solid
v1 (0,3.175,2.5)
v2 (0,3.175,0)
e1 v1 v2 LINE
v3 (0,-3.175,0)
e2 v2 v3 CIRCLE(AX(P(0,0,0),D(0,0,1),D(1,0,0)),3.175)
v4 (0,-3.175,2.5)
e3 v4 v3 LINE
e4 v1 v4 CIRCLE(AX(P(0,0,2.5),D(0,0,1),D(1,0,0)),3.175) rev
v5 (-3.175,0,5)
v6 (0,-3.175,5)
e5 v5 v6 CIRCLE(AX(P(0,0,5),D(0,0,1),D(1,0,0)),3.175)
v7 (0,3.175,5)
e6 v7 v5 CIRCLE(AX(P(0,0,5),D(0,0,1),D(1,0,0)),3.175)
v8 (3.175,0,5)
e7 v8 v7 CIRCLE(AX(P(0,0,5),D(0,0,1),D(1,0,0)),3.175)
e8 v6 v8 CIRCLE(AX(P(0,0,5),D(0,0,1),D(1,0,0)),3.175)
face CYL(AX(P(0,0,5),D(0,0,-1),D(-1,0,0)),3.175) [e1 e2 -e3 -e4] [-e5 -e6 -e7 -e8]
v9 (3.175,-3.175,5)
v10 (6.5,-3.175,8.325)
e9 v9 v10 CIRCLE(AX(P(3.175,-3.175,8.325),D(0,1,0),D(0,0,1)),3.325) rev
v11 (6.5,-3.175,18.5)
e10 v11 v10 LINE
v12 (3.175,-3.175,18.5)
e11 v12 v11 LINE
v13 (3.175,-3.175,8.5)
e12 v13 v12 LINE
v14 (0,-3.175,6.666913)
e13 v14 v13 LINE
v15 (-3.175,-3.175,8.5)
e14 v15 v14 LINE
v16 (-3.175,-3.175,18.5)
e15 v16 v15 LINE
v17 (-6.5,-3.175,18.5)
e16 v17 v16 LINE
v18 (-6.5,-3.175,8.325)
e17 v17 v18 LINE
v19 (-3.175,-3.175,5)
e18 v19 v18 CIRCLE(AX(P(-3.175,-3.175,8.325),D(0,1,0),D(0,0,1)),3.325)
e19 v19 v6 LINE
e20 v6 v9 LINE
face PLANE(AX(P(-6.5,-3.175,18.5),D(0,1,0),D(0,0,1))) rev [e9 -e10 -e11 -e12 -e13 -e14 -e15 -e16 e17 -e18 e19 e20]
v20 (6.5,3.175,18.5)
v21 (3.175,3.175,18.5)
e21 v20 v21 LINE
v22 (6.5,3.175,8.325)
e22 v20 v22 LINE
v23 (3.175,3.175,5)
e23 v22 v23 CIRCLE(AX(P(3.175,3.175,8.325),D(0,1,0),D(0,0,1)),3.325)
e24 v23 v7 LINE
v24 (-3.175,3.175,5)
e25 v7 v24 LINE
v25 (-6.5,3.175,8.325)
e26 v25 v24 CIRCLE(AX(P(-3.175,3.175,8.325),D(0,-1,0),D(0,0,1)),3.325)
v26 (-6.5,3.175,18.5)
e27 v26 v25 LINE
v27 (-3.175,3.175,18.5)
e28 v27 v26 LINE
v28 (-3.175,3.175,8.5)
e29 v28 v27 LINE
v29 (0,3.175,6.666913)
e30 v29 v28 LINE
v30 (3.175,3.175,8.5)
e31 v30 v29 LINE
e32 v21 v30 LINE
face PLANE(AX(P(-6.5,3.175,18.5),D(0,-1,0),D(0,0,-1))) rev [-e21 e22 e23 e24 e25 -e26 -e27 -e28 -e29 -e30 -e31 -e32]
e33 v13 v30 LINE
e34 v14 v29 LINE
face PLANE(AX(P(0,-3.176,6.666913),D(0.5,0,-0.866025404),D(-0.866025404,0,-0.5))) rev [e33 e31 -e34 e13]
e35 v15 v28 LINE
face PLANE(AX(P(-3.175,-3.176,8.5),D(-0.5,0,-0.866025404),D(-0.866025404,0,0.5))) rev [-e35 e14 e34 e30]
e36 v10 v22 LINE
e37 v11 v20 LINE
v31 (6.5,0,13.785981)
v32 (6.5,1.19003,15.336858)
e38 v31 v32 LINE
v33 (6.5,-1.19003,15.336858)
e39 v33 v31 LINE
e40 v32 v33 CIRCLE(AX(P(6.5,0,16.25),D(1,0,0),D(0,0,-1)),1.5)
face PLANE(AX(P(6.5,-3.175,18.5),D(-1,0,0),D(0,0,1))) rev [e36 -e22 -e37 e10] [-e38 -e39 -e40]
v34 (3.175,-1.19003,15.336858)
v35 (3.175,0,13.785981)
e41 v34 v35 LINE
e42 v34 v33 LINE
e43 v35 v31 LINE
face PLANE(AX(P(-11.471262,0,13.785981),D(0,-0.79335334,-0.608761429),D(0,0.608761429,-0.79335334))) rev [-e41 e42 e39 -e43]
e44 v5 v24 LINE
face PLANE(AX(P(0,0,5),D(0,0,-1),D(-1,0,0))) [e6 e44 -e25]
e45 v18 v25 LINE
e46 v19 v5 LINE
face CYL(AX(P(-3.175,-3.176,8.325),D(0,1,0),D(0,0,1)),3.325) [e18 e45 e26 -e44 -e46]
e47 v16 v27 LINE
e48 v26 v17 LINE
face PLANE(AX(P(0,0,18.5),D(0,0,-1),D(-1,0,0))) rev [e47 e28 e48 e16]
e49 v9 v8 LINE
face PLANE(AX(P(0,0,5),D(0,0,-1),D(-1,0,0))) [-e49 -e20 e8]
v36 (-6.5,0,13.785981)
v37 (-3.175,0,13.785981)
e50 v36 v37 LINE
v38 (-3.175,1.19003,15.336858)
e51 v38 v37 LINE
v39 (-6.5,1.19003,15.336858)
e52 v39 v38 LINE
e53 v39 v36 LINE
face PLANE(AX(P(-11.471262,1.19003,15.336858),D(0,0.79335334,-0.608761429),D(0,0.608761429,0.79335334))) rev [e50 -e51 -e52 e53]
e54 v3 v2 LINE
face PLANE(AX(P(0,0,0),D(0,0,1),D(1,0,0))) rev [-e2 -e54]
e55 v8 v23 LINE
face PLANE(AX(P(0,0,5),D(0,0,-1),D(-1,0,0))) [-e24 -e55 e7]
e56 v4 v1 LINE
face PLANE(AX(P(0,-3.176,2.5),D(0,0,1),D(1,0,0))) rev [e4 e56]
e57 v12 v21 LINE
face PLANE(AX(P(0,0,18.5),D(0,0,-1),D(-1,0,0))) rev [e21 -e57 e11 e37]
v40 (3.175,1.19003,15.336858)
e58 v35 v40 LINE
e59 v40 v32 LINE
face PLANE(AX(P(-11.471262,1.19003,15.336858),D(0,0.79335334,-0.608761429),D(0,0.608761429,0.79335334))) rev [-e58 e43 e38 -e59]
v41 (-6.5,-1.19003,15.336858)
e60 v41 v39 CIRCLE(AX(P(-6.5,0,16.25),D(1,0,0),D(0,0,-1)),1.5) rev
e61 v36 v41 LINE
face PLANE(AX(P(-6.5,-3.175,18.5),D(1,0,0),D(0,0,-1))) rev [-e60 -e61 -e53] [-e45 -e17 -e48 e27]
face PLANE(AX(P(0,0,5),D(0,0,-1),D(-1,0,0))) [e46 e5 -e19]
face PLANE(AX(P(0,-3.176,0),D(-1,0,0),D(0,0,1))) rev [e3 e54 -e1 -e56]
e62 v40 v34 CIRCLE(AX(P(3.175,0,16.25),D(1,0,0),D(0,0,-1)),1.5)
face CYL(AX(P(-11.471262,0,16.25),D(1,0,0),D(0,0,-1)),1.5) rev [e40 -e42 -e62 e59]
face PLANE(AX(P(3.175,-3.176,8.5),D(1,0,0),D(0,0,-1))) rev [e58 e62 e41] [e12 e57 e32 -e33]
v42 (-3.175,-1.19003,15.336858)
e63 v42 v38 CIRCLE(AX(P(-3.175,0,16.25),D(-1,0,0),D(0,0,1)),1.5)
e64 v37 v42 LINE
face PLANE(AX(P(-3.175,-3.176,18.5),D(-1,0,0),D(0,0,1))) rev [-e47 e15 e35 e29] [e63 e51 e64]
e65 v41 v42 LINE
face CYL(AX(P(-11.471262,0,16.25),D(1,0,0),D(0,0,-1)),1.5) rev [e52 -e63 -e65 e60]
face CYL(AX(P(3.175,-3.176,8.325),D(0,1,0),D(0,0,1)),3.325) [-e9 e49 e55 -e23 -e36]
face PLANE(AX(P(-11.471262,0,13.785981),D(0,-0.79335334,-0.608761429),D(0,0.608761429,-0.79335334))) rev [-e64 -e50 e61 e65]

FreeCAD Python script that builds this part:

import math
import FreeCAD as App
import Part
import Sketcher
Q = App.Units.Quantity


def add_polygon(sketch, points):
    """Adds a closed chain of lines whose ends are joined by coincident constraints."""
    first, n = sketch.GeometryCount, len(points)
    for a, b in zip(points, points[1:] + points[:1]):
        sketch.addGeometry(Part.LineSegment(App.Vector(*a, 0), App.Vector(*b, 0)), False)
    for i in range(n):
        sketch.addConstraint(Sketcher.Constraint("Coincident", first + i, 2, first + (i + 1) % n, 1))

doc = App.newDocument("Part")
body = doc.addObject("PartDesign::Body", "Body")

sketch1 = body.newObject("Sketcher::SketchObject", "Sketch")
sketch1.AttachmentSupport = (doc.getObject("XY_Plane"), [""])
sketch1.MapMode = "FlatFace"
sketch1.addGeometry(Part.Circle(App.Vector(0, 0, 0), App.Vector(0, 0, 1), 3.175), False)
sketch1.addConstraint([
    Sketcher.Constraint("Coincident", 0, 3, -1, 1),
    Sketcher.Constraint("Diameter", 0, 6.35),
])
pad1 = body.newObject("PartDesign::Pad", "Pad")
pad1.Profile = sketch1
pad1.Length = 5

sketch2 = body.newObject("Sketcher::SketchObject", "Sketch001")
sketch2.AttachmentSupport = (doc.getObject("XY_Plane"), [""])
sketch2.MapMode = "FlatFace"
sketch2.AttachmentOffset = App.Placement(App.Vector(0, 0, 5), App.Rotation())
add_polygon(sketch2, [(-6.5, 3.175), (-6.5, -3.175), (6.5, -3.175), (6.5, 3.175)])
sketch2.addConstraint([
    Sketcher.Constraint("Vertical", 0),
    Sketcher.Constraint("Horizontal", 1),
    Sketcher.Constraint("Vertical", 2),
    Sketcher.Constraint("Horizontal", 3),
    Sketcher.Constraint("Symmetric", 0, 2, 2, 2, -1, 1),
    Sketcher.Constraint("DistanceX", 1, 1, 1, 2, 13.0),
    Sketcher.Constraint("DistanceY", 0, 2, 0, 1, 6.35),
])
pad2 = body.newObject("PartDesign::Pad", "Pad001")
pad2.Profile = sketch2
pad2.Length = 13.5

sketch3 = body.newObject("Sketcher::SketchObject", "Sketch002")
sketch3.AttachmentSupport = (doc.getObject("XZ_Plane"), [""])
sketch3.MapMode = "FlatFace"
add_polygon(sketch3, [(0, 0), (0, 2.5), (3.175, 2.5), (3.175, 0)])
sketch3.addConstraint([
    Sketcher.Constraint("Vertical", 0),
    Sketcher.Constraint("Horizontal", 1),
    Sketcher.Constraint("Vertical", 2),
    Sketcher.Constraint("Horizontal", 3),
    Sketcher.Constraint("Coincident", 3, 2, -1, 1),
    Sketcher.Constraint("DistanceY", 0, 1, 0, 2, 2.5),
    Sketcher.Constraint("DistanceX", 1, 1, 1, 2, 3.175),
])
pocket1 = body.newObject("PartDesign::Pocket", "Pocket")
pocket1.Profile = sketch3
pocket1.Length = 3.175
pocket1.Reversed = True

sketch4 = body.newObject("Sketcher::SketchObject", "Sketch003")
sketch4.AttachmentSupport = (doc.getObject("XZ_Plane"), [""])
sketch4.MapMode = "FlatFace"
add_polygon(sketch4, [(0, 0), (0, 2.5), (3.175, 2.5), (3.175, 0)])
sketch4.addConstraint([
    Sketcher.Constraint("Vertical", 0),
    Sketcher.Constraint("Horizontal", 1),
    Sketcher.Constraint("Vertical", 2),
    Sketcher.Constraint("Horizontal", 3),
    Sketcher.Constraint("Coincident", 3, 2, -1, 1),
    Sketcher.Constraint("DistanceY", 0, 1, 0, 2, 2.5),
    Sketcher.Constraint("DistanceX", 1, 1, 1, 2, 3.175),
])
pocket2 = body.newObject("PartDesign::Pocket", "Pocket001")
pocket2.Profile = sketch4
pocket2.Length = 3.175

sketch5 = body.newObject("Sketcher::SketchObject", "Sketch004")
sketch5.AttachmentSupport = (doc.getObject("XZ_Plane"), [""])
sketch5.MapMode = "FlatFace"
sketch5.AttachmentOffset = App.Placement(App.Vector(0, 0, -3.175), App.Rotation())
add_polygon(sketch5, [(-3.175, 18.5), (3.175, 18.5), (3.175, 8.5), (0, 6.666913), (-3.175, 8.5)])
sketch5.addConstraint([
    Sketcher.Constraint("Horizontal", 0),
    Sketcher.Constraint("Vertical", 1),
    Sketcher.Constraint("Vertical", 4),
    Sketcher.Constraint("Symmetric", 1, 2, 3, 2, -2),
    Sketcher.Constraint("PointOnObject", 2, 2, -2),
    Sketcher.Constraint("DistanceY", 1, 2, 1, 1, 10.0),
    Sketcher.Constraint("Angle", 2, Q("-150 deg")),
    Sketcher.Constraint("DistanceX", 0, 1, 0, 2, 6.35),
    Sketcher.Constraint("DistanceY", -1, 1, 0, 2, 18.5),
])
pocket3 = body.newObject("PartDesign::Pocket", "Pocket002")
pocket3.Profile = sketch5
pocket3.Type = "UpToFirst"
pocket3.Reversed = True

sketch6 = body.newObject("Sketcher::SketchObject", "Sketch005")
sketch6.AttachmentSupport = (doc.getObject("XZ_Plane"), [""])
sketch6.MapMode = "FlatFace"
sketch6.AttachmentOffset = App.Placement(App.Vector(0, 0, -3.175), App.Rotation())
sketch6.addGeometry([
    Part.LineSegment(App.Vector(-3.175, 5, 0), App.Vector(-6.5, 5, 0)),
    Part.LineSegment(App.Vector(-6.5, 5, 0), App.Vector(-6.5, 8.325, 0)),
    Part.ArcOfCircle(Part.Circle(App.Vector(-3.175, 8.325, 0), App.Vector(0, 0, 1), 3.325), math.radians(-180), math.radians(-90)),
], False)
sketch6.addConstraint([
    Sketcher.Constraint("Coincident", 0, 2, 1, 1),
    Sketcher.Constraint("Tangent", 1, 2, 2, 1),
    Sketcher.Constraint("Tangent", 2, 2, 0, 1),
    Sketcher.Constraint("Horizontal", 0),
    Sketcher.Constraint("Vertical", 1),
    Sketcher.Constraint("DistanceY", -1, 1, 0, 2, 5.0),
    Sketcher.Constraint("Radius", 2, 3.325),
    Sketcher.Constraint("DistanceX", 0, 2, -1, 1, 6.5),
])
pocket4 = body.newObject("PartDesign::Pocket", "Pocket003")
pocket4.Profile = sketch6
pocket4.Length = 6.35
pocket4.Reversed = True
doc.recompute()

mirrored = body.newObject("PartDesign::Mirrored", "Mirrored")
mirrored.Originals = [pocket4]
mirrored.MirrorPlane = (doc.getObject("YZ_Plane"), [""])
body.Tip = mirrored

sketch7 = body.newObject("Sketcher::SketchObject", "Sketch006")
sketch7.AttachmentSupport = (doc.getObject("YZ_Plane"), [""])
sketch7.MapMode = "FlatFace"
sketch7.AttachmentOffset = App.Placement(App.Vector(0, 0, 6.5), App.Rotation())
sketch7.addGeometry([
    Part.LineSegment(App.Vector(0, 13.785981, 0), App.Vector(1.19003, 15.336858, 0)),
    Part.ArcOfCircle(Part.Circle(App.Vector(0, 16.25, 0), App.Vector(0, 0, 1), 1.5), math.radians(-37.5), math.radians(217.5)),
    Part.LineSegment(App.Vector(-1.19003, 15.336858, 0), App.Vector(0, 13.785981, 0)),
], False)
sketch7.addConstraint([
    Sketcher.Constraint("Tangent", 0, 2, 1, 1),
    Sketcher.Constraint("Tangent", 1, 2, 2, 1),
    Sketcher.Constraint("Coincident", 2, 2, 0, 1),
    Sketcher.Constraint("Symmetric", 0, 2, 1, 2, -2),
    Sketcher.Constraint("Radius", 1, 1.5),
    Sketcher.Constraint("Angle", 0, Q("52.5 deg")),
    Sketcher.Constraint("DistanceY", -1, 1, 1, 3, 16.25),
])
pocket5 = body.newObject("PartDesign::Pocket", "Pocket004")
pocket5.Profile = sketch7
pocket5.Length = 13

doc.recompute()
